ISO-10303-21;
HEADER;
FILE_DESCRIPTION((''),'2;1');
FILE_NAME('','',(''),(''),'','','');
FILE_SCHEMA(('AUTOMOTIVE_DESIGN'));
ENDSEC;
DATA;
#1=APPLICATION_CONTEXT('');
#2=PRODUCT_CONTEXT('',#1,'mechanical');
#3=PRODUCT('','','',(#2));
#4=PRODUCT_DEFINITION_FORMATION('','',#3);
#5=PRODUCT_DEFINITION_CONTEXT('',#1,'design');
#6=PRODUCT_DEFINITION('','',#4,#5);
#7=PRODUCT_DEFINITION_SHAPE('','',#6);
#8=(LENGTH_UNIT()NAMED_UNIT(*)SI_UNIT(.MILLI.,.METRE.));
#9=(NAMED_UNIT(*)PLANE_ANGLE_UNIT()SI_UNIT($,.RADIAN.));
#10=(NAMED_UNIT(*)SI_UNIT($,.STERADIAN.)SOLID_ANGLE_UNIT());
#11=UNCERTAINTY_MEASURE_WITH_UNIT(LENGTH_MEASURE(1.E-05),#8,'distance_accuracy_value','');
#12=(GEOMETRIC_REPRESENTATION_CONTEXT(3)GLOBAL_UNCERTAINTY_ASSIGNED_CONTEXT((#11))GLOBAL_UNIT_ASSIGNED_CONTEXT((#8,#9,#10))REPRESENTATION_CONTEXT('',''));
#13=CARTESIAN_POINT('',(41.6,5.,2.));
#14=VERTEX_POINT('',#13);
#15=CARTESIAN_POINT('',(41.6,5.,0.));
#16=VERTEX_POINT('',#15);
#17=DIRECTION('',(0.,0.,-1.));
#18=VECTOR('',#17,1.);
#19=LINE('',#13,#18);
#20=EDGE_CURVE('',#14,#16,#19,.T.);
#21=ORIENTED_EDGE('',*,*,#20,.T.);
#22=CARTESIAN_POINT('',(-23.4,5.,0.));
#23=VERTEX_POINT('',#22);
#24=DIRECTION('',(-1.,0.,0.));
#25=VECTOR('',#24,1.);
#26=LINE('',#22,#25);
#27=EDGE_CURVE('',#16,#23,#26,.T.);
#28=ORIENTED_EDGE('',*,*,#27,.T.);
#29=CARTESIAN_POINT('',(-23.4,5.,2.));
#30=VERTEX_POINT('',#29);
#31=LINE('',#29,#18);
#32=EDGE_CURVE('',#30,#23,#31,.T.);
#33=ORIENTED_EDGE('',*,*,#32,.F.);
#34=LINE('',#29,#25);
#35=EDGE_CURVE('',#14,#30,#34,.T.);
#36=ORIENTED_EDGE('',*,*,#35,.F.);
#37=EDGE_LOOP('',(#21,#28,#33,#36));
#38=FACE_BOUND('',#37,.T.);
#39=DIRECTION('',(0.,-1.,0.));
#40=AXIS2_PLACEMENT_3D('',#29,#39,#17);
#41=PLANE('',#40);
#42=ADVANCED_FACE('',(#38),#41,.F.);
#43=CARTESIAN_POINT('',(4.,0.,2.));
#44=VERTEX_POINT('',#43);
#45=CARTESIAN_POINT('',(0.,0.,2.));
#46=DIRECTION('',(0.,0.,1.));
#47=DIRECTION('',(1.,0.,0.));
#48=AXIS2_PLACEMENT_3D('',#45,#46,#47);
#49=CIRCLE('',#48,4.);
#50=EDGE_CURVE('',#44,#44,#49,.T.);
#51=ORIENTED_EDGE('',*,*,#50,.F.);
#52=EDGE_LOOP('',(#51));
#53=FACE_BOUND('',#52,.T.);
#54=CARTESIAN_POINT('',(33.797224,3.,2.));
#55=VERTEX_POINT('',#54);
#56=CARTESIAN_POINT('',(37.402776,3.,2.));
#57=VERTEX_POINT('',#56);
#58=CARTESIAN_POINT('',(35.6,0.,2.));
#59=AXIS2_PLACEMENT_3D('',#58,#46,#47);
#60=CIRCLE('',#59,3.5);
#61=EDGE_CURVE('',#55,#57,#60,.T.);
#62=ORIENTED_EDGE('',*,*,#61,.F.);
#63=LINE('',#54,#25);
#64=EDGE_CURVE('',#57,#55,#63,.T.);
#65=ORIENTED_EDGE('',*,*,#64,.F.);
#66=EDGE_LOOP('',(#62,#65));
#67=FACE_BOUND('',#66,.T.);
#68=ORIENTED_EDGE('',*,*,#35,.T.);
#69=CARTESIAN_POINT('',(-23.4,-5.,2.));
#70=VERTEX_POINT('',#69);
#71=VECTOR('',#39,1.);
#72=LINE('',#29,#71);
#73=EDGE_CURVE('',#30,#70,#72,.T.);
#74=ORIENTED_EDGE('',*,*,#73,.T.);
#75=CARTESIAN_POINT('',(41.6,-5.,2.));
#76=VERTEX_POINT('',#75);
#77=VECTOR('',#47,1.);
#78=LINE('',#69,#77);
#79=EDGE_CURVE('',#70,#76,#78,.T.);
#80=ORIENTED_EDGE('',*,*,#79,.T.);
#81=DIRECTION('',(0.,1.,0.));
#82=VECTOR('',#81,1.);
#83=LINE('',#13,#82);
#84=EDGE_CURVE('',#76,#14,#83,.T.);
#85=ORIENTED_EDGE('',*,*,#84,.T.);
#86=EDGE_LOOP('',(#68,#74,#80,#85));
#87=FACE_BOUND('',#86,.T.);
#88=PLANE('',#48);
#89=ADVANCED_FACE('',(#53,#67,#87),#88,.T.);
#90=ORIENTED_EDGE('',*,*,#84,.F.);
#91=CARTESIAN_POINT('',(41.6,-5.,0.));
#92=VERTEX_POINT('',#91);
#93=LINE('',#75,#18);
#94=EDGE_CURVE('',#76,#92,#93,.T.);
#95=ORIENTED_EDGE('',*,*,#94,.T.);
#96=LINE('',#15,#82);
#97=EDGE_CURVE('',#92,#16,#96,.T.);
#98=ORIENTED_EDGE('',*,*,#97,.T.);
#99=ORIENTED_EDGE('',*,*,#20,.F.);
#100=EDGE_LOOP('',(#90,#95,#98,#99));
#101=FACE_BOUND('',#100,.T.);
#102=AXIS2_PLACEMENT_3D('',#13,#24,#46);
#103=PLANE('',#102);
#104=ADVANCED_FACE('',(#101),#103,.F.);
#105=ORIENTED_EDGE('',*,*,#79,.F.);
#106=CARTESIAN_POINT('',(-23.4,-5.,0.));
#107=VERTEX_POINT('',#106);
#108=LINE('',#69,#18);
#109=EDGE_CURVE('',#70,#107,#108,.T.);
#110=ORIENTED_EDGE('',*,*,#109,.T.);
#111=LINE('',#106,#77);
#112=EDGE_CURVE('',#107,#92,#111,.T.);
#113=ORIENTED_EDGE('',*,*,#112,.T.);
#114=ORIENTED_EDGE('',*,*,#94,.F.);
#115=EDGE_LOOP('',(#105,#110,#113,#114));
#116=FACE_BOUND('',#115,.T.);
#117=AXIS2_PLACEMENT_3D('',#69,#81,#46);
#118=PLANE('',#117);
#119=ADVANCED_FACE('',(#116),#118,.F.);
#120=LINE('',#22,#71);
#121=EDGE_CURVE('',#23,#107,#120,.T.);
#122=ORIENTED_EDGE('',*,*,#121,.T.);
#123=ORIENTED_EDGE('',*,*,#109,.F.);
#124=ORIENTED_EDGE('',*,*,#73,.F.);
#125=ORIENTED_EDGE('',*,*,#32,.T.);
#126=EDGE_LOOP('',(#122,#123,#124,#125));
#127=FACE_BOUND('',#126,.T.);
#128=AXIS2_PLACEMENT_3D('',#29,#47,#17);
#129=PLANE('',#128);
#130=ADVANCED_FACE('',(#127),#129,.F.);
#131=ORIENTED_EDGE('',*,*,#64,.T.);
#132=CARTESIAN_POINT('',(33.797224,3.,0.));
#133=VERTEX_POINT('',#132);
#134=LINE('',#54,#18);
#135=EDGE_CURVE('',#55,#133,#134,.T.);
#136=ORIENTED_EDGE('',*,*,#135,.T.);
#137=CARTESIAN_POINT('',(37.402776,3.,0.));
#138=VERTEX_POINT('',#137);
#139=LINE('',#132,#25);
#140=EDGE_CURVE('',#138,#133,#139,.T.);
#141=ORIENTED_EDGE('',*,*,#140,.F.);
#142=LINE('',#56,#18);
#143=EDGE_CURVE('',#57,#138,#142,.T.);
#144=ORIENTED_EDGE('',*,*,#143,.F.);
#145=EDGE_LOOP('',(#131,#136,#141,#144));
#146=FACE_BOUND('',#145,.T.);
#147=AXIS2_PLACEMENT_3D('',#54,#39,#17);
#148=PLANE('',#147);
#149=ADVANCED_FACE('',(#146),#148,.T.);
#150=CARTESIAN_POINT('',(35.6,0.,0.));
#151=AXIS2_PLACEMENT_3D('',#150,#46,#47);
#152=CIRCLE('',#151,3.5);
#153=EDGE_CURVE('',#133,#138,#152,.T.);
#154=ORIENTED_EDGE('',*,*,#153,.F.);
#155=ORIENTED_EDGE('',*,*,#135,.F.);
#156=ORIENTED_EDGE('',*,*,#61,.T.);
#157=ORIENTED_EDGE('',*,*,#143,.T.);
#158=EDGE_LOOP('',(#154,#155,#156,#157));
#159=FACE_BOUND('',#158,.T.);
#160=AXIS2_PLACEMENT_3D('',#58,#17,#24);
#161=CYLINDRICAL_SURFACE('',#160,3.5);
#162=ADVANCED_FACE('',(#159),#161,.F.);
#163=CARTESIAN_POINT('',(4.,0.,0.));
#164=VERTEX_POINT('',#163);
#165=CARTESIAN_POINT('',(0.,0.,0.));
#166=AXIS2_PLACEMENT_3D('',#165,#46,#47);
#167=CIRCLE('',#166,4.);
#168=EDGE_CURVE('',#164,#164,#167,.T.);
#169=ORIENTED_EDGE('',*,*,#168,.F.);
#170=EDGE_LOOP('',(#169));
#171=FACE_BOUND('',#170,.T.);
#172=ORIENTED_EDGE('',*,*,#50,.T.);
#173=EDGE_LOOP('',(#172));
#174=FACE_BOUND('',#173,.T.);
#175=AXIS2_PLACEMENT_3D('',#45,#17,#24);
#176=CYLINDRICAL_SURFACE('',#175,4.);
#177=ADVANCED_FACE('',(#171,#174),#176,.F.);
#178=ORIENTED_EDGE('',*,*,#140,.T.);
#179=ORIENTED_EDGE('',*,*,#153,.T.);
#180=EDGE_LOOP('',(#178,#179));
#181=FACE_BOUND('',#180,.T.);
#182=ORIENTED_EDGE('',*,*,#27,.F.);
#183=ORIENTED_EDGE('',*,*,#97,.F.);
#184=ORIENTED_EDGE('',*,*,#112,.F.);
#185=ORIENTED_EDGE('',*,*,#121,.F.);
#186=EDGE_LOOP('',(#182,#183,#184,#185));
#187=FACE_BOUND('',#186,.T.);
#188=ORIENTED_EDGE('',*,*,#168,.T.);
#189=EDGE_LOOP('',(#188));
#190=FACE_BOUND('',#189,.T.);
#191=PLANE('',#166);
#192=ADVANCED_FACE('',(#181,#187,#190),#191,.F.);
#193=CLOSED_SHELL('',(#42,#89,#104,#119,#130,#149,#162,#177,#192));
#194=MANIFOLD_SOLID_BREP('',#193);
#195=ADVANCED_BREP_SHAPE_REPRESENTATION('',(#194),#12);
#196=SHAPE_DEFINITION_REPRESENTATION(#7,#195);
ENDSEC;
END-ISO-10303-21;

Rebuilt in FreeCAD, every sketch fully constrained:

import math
import FreeCAD as App
import Part
import Sketcher

V = App.Vector


def add_polygon(sketch, points):
    """Adds a closed chain of lines whose ends are joined by coincident constraints."""
    first, n = sketch.GeometryCount, len(points)
    for a, b in zip(points, points[1:] + points[:1]):
        sketch.addGeometry(Part.LineSegment(App.Vector(*a, 0), App.Vector(*b, 0)), False)
    for i in range(n):
        sketch.addConstraint(Sketcher.Constraint("Coincident", first + i, 2, first + (i + 1) % n, 1))

doc = App.newDocument("Part")
body = doc.addObject("PartDesign::Body", "Body")

# Sketch on XY plane
sketch1 = body.newObject("Sketcher::SketchObject", "Sketch")
sketch1.AttachmentSupport = (doc.getObject("XY_Plane"), [""])
sketch1.MapMode = "FlatFace"
add_polygon(sketch1, [(-23.4, 5), (-23.4, -5), (41.6, -5), (41.6, 5)])  # lines 0-3
sketch1.addGeometry(Part.ArcOfCircle(Part.Circle(V(35.6, 0, 0), V(0, 0, 1), 3.5), math.radians(121.002719), math.radians(418.997281)), False)  # 4
sketch1.addGeometry(Part.LineSegment(V(33.797224, 3, 0), V(37.402776, 3, 0)), False)  # 5
sketch1.addGeometry(Part.Circle(V(0, 0, 0), V(0, 0, 1), 4), False)  # 6
sketch1.addConstraint(Sketcher.Constraint("Coincident", 4, 1, 5, 1))
sketch1.addConstraint(Sketcher.Constraint("Coincident", 5, 2, 4, 2))
sketch1.addConstraint(Sketcher.Constraint("Vertical", 0))
sketch1.addConstraint(Sketcher.Constraint("Horizontal", 1))
sketch1.addConstraint(Sketcher.Constraint("Vertical", 2))
sketch1.addConstraint(Sketcher.Constraint("Horizontal", 3))
sketch1.addConstraint(Sketcher.Constraint("Horizontal", 5))
sketch1.addConstraint(Sketcher.Constraint("Coincident", 6, 3, -1, 1))
sketch1.addConstraint(Sketcher.Constraint("PointOnObject", 4, 3, -1))
sketch1.addConstraint(Sketcher.Constraint("Diameter", 6, 8.0))
sketch1.addConstraint(Sketcher.Constraint("Radius", 4, 3.5))
sketch1.addConstraint(Sketcher.Constraint("DistanceX", 1, 1, 1, 2, 65.0))
sketch1.addConstraint(Sketcher.Constraint("DistanceY", 0, 2, 0, 1, 10.0))
sketch1.addConstraint(Sketcher.Constraint("DistanceY", 0, 2, -1, 1, 5.0))
sketch1.addConstraint(Sketcher.Constraint("DistanceY", -1, 1, 4, 1, 3.0))
sketch1.addConstraint(Sketcher.Constraint("DistanceX", 0, 2, 4, 3, 59.0))
sketch1.addConstraint(Sketcher.Constraint("DistanceX", -1, 1, 4, 3, 35.6))
pad1 = body.newObject("PartDesign::Pad", "Pad")
pad1.Profile = sketch1
pad1.Length = 2

doc.recompute()
